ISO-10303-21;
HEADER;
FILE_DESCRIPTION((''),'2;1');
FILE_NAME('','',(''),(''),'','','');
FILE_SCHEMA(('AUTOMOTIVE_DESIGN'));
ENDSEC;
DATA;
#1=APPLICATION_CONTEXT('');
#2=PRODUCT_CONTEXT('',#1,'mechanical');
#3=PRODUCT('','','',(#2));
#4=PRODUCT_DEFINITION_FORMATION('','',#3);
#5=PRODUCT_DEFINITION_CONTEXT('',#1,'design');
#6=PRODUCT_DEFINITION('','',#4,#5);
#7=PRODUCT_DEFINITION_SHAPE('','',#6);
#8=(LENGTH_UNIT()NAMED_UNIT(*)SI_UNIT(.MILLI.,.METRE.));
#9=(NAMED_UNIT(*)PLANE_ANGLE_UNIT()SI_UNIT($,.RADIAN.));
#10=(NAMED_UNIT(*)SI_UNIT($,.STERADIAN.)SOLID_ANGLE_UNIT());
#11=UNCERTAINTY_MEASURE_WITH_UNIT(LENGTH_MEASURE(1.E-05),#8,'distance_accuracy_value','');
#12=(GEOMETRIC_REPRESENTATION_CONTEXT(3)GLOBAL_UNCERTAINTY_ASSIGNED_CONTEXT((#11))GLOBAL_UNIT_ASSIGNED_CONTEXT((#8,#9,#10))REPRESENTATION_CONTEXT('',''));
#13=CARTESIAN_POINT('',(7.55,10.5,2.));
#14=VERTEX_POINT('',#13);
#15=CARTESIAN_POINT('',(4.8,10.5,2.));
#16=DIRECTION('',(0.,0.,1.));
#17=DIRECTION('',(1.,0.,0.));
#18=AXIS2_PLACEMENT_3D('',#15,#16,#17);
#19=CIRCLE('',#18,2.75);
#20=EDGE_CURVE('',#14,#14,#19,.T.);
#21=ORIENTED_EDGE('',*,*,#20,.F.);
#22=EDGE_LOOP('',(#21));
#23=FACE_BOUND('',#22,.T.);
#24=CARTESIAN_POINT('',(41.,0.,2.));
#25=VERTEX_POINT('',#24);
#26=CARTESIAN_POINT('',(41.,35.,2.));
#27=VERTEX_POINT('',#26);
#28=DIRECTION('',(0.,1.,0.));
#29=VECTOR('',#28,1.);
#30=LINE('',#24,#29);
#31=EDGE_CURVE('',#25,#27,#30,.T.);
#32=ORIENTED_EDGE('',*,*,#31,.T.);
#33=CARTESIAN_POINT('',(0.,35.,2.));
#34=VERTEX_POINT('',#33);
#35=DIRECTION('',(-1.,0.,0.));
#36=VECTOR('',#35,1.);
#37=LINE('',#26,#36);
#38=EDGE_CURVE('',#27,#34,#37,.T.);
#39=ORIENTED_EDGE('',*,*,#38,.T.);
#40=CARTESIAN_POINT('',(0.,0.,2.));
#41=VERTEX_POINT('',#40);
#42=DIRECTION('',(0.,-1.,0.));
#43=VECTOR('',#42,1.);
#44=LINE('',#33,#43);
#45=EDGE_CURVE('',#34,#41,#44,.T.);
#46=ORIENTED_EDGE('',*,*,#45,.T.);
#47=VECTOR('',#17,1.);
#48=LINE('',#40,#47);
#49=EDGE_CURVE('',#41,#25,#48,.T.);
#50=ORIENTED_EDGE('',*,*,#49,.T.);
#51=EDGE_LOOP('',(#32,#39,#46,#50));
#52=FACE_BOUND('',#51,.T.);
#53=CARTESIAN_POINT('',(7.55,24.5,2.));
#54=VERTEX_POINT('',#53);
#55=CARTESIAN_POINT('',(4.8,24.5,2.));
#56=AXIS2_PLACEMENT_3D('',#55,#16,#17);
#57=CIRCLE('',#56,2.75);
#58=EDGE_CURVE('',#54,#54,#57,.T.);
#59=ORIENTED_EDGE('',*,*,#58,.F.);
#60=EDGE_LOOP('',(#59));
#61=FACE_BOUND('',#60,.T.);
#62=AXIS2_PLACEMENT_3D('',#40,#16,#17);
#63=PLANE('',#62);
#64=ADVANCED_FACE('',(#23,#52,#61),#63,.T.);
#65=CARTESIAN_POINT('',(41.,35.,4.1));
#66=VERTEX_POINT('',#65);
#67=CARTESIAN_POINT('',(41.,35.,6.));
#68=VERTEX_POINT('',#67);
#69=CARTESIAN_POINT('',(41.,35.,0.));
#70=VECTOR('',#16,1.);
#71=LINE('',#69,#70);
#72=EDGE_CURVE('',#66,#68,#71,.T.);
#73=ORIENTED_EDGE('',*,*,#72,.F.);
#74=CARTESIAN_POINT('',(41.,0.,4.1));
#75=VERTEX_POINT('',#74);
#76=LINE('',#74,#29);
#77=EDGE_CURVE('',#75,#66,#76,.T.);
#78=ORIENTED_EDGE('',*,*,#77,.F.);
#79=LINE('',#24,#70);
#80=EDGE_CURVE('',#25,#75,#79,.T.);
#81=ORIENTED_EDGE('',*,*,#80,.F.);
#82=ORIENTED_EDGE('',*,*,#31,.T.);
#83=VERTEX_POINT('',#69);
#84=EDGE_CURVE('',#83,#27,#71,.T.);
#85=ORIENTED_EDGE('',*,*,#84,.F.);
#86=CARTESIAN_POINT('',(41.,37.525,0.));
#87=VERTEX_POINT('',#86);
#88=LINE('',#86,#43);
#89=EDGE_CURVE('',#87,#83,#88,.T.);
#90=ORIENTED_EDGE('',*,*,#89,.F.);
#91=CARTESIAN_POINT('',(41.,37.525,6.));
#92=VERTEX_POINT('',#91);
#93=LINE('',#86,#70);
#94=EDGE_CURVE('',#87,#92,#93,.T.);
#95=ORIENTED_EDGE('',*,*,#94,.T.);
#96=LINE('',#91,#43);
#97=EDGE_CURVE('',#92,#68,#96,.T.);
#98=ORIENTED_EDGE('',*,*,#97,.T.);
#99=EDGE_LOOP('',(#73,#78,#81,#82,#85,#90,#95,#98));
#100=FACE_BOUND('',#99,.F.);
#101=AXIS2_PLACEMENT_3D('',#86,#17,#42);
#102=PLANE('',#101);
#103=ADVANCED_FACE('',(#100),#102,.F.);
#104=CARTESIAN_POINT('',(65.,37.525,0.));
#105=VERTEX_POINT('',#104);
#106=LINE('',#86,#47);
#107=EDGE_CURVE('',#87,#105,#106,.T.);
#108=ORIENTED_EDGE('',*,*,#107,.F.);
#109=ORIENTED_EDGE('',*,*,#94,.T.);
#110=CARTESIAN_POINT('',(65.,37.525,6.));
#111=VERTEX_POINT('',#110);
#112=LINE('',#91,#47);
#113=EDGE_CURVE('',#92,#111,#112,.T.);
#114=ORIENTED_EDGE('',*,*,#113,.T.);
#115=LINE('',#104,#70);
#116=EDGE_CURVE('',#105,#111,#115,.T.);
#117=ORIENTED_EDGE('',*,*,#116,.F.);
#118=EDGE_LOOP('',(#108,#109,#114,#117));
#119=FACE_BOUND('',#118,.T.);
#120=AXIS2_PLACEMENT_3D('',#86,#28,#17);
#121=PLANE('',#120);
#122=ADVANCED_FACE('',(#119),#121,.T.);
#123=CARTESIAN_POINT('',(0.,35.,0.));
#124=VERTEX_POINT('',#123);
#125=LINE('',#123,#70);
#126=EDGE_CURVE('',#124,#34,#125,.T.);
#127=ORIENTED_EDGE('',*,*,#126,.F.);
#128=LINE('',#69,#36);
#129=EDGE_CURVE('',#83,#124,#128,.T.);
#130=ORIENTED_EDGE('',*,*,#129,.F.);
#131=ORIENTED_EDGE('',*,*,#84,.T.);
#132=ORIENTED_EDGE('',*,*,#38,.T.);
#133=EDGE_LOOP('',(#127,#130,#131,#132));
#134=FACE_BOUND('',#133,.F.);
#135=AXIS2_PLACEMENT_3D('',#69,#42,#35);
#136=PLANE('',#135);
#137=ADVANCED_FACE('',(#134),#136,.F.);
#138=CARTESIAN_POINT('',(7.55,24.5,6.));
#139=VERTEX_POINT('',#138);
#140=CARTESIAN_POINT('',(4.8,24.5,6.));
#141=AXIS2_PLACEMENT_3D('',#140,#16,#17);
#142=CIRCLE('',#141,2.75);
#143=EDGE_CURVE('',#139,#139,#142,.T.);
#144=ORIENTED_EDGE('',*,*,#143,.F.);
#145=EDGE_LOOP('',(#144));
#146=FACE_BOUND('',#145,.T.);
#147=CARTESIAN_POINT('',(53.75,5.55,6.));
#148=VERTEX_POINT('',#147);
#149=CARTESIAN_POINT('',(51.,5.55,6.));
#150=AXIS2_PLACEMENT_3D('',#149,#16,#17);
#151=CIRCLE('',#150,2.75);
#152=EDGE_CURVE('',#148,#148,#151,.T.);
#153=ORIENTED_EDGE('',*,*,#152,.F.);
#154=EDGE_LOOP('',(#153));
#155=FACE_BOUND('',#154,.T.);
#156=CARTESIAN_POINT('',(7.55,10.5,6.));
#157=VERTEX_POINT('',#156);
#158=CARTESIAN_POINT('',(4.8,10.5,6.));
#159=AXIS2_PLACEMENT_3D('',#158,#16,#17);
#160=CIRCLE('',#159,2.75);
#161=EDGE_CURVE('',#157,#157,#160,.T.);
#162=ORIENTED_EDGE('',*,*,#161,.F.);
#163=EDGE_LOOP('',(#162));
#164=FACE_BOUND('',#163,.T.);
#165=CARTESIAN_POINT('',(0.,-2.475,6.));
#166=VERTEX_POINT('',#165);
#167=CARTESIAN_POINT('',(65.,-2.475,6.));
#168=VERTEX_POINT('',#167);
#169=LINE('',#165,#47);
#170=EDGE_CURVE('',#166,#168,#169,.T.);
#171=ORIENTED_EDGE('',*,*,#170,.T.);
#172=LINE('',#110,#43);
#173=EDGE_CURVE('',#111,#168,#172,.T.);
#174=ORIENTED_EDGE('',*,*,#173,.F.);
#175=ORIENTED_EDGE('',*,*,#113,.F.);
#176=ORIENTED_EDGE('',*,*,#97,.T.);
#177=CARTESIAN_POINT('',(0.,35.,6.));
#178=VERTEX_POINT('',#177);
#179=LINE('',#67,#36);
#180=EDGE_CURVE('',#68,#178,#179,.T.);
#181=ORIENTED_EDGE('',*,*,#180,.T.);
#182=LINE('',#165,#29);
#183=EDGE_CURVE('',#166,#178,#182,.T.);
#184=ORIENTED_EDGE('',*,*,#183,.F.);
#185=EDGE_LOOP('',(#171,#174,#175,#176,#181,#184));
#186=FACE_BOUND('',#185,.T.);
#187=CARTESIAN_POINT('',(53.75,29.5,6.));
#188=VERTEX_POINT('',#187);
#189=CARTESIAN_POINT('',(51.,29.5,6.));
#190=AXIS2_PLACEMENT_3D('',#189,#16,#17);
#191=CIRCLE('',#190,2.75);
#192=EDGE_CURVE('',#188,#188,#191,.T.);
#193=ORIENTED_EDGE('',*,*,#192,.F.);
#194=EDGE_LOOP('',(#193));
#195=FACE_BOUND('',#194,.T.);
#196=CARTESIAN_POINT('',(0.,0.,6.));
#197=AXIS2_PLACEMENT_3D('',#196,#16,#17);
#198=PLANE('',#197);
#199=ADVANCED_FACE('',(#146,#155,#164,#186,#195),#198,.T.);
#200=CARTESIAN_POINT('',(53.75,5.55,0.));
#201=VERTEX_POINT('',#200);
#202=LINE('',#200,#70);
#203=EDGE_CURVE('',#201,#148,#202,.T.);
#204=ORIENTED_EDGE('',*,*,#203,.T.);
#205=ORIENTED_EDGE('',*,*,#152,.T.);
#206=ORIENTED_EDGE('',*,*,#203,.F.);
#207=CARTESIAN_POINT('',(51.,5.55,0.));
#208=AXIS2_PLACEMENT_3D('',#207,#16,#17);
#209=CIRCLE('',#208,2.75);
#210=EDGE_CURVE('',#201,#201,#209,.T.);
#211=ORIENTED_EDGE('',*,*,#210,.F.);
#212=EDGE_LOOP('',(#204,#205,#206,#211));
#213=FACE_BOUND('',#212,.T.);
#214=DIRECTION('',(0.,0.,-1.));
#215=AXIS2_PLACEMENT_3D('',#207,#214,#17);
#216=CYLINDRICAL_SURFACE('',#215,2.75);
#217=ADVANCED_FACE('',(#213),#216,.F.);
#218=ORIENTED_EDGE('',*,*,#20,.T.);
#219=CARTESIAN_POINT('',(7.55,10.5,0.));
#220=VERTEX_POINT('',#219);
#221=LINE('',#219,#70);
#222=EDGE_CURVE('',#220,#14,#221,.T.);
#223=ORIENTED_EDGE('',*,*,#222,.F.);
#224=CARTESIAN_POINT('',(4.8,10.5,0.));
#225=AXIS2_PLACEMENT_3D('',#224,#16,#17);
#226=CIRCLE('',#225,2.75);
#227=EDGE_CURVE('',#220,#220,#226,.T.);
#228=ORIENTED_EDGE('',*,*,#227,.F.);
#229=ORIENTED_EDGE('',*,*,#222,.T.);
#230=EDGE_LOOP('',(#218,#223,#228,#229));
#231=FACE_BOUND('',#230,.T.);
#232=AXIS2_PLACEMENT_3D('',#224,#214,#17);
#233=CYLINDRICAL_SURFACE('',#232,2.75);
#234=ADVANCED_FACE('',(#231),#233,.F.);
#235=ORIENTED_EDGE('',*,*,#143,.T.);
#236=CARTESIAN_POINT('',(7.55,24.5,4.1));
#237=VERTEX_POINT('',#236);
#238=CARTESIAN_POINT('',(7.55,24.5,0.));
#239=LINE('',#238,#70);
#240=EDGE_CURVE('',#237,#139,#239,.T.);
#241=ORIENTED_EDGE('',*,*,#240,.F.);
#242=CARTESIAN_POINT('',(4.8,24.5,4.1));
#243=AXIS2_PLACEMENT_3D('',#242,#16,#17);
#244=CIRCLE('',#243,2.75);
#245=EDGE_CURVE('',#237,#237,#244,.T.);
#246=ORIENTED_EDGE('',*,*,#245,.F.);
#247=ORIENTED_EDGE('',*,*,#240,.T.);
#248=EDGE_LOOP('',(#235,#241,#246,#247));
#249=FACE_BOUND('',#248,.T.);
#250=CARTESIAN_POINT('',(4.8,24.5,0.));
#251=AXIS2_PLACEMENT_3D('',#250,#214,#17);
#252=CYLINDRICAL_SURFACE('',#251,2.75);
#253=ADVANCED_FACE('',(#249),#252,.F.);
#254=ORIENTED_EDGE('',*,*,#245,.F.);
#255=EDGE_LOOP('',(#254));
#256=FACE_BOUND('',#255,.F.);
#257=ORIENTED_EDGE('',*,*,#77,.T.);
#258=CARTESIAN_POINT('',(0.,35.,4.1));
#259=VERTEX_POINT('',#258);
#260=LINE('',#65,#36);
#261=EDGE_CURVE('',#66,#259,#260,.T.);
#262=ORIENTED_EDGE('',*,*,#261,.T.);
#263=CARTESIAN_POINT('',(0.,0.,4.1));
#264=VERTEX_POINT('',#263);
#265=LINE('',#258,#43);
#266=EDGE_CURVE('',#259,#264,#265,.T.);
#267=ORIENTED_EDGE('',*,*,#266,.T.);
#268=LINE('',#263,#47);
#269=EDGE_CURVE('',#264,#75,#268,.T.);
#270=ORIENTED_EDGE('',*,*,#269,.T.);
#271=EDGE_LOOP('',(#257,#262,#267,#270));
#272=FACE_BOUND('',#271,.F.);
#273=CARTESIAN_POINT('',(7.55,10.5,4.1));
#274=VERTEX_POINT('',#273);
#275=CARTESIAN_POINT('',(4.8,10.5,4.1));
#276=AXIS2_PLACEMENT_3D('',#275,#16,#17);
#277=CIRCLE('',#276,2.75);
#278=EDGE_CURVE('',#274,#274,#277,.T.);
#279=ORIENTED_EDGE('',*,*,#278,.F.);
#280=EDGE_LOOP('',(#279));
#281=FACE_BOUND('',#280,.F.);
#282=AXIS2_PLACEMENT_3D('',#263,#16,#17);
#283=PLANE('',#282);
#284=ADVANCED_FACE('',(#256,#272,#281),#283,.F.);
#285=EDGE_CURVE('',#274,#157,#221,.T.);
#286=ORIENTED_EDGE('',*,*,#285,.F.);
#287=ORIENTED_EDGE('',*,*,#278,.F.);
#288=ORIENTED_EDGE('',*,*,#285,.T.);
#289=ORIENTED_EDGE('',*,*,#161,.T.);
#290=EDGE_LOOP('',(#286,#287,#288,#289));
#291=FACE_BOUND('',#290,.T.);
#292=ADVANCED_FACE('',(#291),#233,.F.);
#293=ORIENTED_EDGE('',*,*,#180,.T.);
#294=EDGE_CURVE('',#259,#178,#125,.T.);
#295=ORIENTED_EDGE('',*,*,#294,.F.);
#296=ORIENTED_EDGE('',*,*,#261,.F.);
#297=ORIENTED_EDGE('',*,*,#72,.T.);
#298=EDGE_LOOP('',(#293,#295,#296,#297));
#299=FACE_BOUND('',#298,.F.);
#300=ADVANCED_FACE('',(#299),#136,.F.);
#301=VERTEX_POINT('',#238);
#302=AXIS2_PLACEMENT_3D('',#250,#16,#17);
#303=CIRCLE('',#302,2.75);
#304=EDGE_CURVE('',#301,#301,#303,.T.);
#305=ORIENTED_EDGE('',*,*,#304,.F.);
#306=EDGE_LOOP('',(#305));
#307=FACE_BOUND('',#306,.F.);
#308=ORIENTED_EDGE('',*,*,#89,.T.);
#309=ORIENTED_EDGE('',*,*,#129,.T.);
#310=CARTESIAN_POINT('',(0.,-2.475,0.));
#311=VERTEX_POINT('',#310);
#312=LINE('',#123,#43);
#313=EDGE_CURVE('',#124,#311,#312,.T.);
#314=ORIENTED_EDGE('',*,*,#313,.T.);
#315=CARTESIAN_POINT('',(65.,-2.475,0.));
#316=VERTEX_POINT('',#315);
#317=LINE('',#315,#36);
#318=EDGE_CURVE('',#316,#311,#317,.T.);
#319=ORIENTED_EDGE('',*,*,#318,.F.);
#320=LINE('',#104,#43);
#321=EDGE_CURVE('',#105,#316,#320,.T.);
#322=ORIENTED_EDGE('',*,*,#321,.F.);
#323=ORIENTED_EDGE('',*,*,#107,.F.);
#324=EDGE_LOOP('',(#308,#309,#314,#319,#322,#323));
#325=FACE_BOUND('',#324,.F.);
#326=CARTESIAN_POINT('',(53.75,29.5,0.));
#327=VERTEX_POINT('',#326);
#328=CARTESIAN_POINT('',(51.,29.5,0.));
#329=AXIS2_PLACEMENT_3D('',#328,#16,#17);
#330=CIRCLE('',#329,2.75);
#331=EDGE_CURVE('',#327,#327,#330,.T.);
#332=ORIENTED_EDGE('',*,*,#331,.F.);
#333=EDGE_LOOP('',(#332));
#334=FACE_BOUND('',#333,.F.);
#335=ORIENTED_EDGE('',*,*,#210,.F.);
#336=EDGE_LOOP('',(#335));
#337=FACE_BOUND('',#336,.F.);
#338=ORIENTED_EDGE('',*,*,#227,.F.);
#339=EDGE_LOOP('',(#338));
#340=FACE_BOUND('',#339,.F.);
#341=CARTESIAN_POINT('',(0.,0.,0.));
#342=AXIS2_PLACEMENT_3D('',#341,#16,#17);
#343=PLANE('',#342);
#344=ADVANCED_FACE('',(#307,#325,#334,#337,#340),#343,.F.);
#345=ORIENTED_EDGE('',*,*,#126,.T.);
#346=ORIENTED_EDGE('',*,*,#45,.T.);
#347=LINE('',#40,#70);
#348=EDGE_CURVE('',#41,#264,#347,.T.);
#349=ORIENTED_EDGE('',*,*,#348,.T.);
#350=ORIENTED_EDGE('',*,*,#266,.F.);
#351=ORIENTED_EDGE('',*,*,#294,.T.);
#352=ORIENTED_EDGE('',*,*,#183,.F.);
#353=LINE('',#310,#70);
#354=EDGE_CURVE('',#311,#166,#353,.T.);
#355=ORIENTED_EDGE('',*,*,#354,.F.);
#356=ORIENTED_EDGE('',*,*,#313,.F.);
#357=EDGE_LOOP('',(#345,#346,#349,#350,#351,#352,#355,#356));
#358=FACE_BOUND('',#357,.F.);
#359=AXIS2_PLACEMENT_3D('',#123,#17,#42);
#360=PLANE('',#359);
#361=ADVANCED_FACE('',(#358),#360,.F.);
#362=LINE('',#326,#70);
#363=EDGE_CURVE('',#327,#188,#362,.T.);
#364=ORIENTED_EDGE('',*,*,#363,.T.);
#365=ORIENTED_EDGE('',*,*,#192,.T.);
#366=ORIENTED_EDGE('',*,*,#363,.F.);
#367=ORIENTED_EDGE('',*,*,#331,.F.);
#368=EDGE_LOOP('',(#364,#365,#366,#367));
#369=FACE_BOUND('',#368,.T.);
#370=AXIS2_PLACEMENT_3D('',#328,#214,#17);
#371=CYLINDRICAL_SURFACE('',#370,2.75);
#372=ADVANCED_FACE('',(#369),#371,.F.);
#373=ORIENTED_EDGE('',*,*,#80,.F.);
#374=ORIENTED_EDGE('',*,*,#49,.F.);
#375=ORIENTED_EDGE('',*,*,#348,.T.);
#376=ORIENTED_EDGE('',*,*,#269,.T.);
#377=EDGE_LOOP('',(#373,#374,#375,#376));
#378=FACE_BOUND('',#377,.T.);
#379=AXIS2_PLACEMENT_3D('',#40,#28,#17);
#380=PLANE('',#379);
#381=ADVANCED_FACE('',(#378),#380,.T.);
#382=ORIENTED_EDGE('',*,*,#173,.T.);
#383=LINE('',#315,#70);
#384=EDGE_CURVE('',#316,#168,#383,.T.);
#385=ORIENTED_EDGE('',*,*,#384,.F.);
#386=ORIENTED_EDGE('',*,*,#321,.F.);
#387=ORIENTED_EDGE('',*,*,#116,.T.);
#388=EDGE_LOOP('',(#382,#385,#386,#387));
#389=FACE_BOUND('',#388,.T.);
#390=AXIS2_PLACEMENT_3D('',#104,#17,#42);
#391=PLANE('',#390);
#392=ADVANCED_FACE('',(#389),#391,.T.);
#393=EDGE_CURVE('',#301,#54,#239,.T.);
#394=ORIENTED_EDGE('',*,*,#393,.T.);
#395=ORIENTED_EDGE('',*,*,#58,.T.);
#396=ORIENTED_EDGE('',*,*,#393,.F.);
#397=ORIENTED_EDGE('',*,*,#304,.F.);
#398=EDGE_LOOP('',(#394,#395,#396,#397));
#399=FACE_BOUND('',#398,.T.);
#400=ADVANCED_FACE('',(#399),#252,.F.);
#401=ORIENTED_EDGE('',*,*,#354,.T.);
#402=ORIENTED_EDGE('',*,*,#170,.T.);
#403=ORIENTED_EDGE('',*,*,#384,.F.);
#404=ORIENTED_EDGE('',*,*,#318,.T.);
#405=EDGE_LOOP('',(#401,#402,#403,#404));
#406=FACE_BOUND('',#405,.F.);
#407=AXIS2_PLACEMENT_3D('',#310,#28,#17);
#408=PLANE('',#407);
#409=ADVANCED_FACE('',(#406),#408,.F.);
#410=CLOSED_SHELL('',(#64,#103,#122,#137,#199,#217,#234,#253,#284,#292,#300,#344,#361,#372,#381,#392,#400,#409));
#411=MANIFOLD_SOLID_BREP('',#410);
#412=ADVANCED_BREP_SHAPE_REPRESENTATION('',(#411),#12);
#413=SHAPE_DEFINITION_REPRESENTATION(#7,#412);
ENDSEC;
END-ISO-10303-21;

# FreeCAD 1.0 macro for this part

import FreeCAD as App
import Part
import Sketcher
from FreeCAD import Vector
Q = App.Units.Quantity


def add_polygon(sketch, points):
    """Adds a closed chain of lines whose ends are joined by coincident constraints."""
    first, n = sketch.GeometryCount, len(points)
    for a, b in zip(points, points[1:] + points[:1]):
        sketch.addGeometry(Part.LineSegment(App.Vector(*a, 0), App.Vector(*b, 0)), False)
    for i in range(n):
        sketch.addConstraint(Sketcher.Constraint("Coincident", first + i, 2, first + (i + 1) % n, 1))

doc = App.newDocument("Part")
params = doc.addObject("Spreadsheet::Sheet", "Params")
for row, (alias, value) in enumerate([
    ("sketch1_diameter", "5.5 mm"),
    ("sketch1_width", "41 mm"),
    ("sketch1_height", "40 mm"),
    ("pad1_length", "6 mm"),
    ("sketch2_diameter", "5.5 mm"),
    ("sketch2_width", "41 mm"),
    ("sketch2_height", "35 mm"),
    ("pocket1_length", "2.1 mm"),
], start=1):
    params.set(f"A{row}", alias)
    params.set(f"B{row}", "=" + value)
    params.setAlias(f"B{row}", alias)

body = doc.addObject("PartDesign::Body", "Body")

# Sketch on XY plane
sketch1 = body.newObject("Sketcher::SketchObject", "Sketch")
sketch1.AttachmentSupport = (doc.getObject("XY_Plane"), [""])
sketch1.MapMode = "FlatFace"
add_polygon(sketch1, [(0, 35), (0, -2.5), (65, -2.5), (65, 37.5), (41, 37.5), (41, 35)])  # lines 0-5
sketch1.addGeometry(Part.Circle(Vector(4.8, 10.5, 0), Vector(0, 0, 1), 2.8), False)  # 6
sketch1.addGeometry(Part.Circle(Vector(4.8, 24.5, 0), Vector(0, 0, 1), 2.8), False)  # 7
sketch1.addGeometry(Part.Circle(Vector(51, 29.5, 0), Vector(0, 0, 1), 2.8), False)  # 8
sketch1.addGeometry(Part.Circle(Vector(51, 5.5, 0), Vector(0, 0, 1), 2.8), False)  # 9
sketch1.addConstraint(Sketcher.Constraint("Vertical", 0))
sketch1.addConstraint(Sketcher.Constraint("Horizontal", 1))
sketch1.addConstraint(Sketcher.Constraint("Vertical", 2))
sketch1.addConstraint(Sketcher.Constraint("Horizontal", 3))
sketch1.addConstraint(Sketcher.Constraint("Vertical", 4))
sketch1.addConstraint(Sketcher.Constraint("Horizontal", 5))
sketch1.addConstraint(Sketcher.Constraint("Equal", 6, 7))
sketch1.addConstraint(Sketcher.Constraint("Equal", 7, 8))
sketch1.addConstraint(Sketcher.Constraint("Equal", 8, 9))
sketch1.addConstraint(Sketcher.Constraint("PointOnObject", 0, 2, -2))
sketch1.addConstraint(Sketcher.Constraint("Vertical", 6, 3, 7, 3))
sketch1.addConstraint(Sketcher.Constraint("Vertical", 8, 3, 9, 3))
sketch1.addConstraint(Sketcher.Constraint("Diameter", 6, Q("5.5 mm")))
sketch1.addConstraint(Sketcher.Constraint("DistanceX", 5, 2, 5, 1, Q("41 mm")))
sketch1.addConstraint(Sketcher.Constraint("DistanceY", 2, 1, 2, 2, Q("40 mm")))
sketch1.addConstraint(Sketcher.Constraint("DistanceY", -1, 1, 4, 2, Q("35 mm")))
sketch1.addConstraint(Sketcher.Constraint("DistanceY", 6, 3, 7, 3, Q("14 mm")))
sketch1.addConstraint(Sketcher.Constraint("DistanceY", 7, 3, 8, 3, Q("5 mm")))
sketch1.addConstraint(Sketcher.Constraint("DistanceX", 9, 3, 1, 2, Q("14 mm")))
sketch1.addConstraint(Sketcher.Constraint("DistanceX", 3, 2, 8, 3, Q("10 mm")))
sketch1.addConstraint(Sketcher.Constraint("DistanceX", -1, 1, 6, 3, Q("4.8 mm")))
sketch1.addConstraint(Sketcher.Constraint("DistanceY", 8, 3, 4, 2, Q("5.5 mm")))
sketch1.addConstraint(Sketcher.Constraint("DistanceY", 9, 3, 8, 3, Q("23.95 mm")))
sketch1.addConstraint(Sketcher.Constraint("DistanceY", 0, 2, 0, 1, Q("37.475 mm")))
sketch1.setExpression("Constraints[18]", "Params.sketch1_diameter")
sketch1.setExpression("Constraints[19]", "Params.sketch1_width")
sketch1.setExpression("Constraints[20]", "Params.sketch1_height")
pad1 = body.newObject("PartDesign::Pad", "Pad")
pad1.Profile = sketch1
pad1.setExpression("Length", "Params.pad1_length")

# Sketch on XY plane
sketch2 = body.newObject("Sketcher::SketchObject", "Sketch001")
sketch2.AttachmentSupport = (doc.getObject("XY_Plane"), [""])
sketch2.MapMode = "FlatFace"
sketch2.AttachmentOffset = App.Placement(Vector(0, 0, 2), App.Rotation())
add_polygon(sketch2, [(0, 35), (0, 0), (41, 0), (41, 35)])  # lines 0-3
sketch2.addGeometry(Part.Circle(Vector(4.8, 10.5, 0), Vector(0, 0, 1), 2.8), False)  # 4
sketch2.addGeometry(Part.Circle(Vector(4.8, 24.5, 0), Vector(0, 0, 1), 2.8), False)  # 5
sketch2.addConstraint(Sketcher.Constraint("Vertical", 0))
sketch2.addConstraint(Sketcher.Constraint("Horizontal", 1))
sketch2.addConstraint(Sketcher.Constraint("Vertical", 2))
sketch2.addConstraint(Sketcher.Constraint("Horizontal", 3))
sketch2.addConstraint(Sketcher.Constraint("Coincident", 0, 2, -1, 1))
sketch2.addConstraint(Sketcher.Constraint("Equal", 4, 5))
sketch2.addConstraint(Sketcher.Constraint("Vertical", 4, 3, 5, 3))
sketch2.addConstraint(Sketcher.Constraint("Diameter", 4, Q("5.5 mm")))
sketch2.addConstraint(Sketcher.Constraint("DistanceX", 1, 1, 1, 2, Q("41 mm")))
sketch2.addConstraint(Sketcher.Constraint("DistanceY", 0, 2, 0, 1, Q("35 mm")))
sketch2.addConstraint(Sketcher.Constraint("DistanceY", 4, 3, 5, 3, Q("14 mm")))
sketch2.addConstraint(Sketcher.Constraint("DistanceX", -1, 1, 4, 3, Q("4.8 mm")))
sketch2.addConstraint(Sketcher.Constraint("DistanceY", -1, 1, 4, 3, Q("10.5 mm")))
sketch2.setExpression("Constraints[11]", "Params.sketch2_diameter")
sketch2.setExpression("Constraints[12]", "Params.sketch2_width")
sketch2.setExpression("Constraints[13]", "Params.sketch2_height")
pocket1 = body.newObject("PartDesign::Pocket", "Pocket")
pocket1.Profile = sketch2
pocket1.setExpression("Length", "Params.pocket1_length")
pocket1.Reversed = True

doc.recompute()
